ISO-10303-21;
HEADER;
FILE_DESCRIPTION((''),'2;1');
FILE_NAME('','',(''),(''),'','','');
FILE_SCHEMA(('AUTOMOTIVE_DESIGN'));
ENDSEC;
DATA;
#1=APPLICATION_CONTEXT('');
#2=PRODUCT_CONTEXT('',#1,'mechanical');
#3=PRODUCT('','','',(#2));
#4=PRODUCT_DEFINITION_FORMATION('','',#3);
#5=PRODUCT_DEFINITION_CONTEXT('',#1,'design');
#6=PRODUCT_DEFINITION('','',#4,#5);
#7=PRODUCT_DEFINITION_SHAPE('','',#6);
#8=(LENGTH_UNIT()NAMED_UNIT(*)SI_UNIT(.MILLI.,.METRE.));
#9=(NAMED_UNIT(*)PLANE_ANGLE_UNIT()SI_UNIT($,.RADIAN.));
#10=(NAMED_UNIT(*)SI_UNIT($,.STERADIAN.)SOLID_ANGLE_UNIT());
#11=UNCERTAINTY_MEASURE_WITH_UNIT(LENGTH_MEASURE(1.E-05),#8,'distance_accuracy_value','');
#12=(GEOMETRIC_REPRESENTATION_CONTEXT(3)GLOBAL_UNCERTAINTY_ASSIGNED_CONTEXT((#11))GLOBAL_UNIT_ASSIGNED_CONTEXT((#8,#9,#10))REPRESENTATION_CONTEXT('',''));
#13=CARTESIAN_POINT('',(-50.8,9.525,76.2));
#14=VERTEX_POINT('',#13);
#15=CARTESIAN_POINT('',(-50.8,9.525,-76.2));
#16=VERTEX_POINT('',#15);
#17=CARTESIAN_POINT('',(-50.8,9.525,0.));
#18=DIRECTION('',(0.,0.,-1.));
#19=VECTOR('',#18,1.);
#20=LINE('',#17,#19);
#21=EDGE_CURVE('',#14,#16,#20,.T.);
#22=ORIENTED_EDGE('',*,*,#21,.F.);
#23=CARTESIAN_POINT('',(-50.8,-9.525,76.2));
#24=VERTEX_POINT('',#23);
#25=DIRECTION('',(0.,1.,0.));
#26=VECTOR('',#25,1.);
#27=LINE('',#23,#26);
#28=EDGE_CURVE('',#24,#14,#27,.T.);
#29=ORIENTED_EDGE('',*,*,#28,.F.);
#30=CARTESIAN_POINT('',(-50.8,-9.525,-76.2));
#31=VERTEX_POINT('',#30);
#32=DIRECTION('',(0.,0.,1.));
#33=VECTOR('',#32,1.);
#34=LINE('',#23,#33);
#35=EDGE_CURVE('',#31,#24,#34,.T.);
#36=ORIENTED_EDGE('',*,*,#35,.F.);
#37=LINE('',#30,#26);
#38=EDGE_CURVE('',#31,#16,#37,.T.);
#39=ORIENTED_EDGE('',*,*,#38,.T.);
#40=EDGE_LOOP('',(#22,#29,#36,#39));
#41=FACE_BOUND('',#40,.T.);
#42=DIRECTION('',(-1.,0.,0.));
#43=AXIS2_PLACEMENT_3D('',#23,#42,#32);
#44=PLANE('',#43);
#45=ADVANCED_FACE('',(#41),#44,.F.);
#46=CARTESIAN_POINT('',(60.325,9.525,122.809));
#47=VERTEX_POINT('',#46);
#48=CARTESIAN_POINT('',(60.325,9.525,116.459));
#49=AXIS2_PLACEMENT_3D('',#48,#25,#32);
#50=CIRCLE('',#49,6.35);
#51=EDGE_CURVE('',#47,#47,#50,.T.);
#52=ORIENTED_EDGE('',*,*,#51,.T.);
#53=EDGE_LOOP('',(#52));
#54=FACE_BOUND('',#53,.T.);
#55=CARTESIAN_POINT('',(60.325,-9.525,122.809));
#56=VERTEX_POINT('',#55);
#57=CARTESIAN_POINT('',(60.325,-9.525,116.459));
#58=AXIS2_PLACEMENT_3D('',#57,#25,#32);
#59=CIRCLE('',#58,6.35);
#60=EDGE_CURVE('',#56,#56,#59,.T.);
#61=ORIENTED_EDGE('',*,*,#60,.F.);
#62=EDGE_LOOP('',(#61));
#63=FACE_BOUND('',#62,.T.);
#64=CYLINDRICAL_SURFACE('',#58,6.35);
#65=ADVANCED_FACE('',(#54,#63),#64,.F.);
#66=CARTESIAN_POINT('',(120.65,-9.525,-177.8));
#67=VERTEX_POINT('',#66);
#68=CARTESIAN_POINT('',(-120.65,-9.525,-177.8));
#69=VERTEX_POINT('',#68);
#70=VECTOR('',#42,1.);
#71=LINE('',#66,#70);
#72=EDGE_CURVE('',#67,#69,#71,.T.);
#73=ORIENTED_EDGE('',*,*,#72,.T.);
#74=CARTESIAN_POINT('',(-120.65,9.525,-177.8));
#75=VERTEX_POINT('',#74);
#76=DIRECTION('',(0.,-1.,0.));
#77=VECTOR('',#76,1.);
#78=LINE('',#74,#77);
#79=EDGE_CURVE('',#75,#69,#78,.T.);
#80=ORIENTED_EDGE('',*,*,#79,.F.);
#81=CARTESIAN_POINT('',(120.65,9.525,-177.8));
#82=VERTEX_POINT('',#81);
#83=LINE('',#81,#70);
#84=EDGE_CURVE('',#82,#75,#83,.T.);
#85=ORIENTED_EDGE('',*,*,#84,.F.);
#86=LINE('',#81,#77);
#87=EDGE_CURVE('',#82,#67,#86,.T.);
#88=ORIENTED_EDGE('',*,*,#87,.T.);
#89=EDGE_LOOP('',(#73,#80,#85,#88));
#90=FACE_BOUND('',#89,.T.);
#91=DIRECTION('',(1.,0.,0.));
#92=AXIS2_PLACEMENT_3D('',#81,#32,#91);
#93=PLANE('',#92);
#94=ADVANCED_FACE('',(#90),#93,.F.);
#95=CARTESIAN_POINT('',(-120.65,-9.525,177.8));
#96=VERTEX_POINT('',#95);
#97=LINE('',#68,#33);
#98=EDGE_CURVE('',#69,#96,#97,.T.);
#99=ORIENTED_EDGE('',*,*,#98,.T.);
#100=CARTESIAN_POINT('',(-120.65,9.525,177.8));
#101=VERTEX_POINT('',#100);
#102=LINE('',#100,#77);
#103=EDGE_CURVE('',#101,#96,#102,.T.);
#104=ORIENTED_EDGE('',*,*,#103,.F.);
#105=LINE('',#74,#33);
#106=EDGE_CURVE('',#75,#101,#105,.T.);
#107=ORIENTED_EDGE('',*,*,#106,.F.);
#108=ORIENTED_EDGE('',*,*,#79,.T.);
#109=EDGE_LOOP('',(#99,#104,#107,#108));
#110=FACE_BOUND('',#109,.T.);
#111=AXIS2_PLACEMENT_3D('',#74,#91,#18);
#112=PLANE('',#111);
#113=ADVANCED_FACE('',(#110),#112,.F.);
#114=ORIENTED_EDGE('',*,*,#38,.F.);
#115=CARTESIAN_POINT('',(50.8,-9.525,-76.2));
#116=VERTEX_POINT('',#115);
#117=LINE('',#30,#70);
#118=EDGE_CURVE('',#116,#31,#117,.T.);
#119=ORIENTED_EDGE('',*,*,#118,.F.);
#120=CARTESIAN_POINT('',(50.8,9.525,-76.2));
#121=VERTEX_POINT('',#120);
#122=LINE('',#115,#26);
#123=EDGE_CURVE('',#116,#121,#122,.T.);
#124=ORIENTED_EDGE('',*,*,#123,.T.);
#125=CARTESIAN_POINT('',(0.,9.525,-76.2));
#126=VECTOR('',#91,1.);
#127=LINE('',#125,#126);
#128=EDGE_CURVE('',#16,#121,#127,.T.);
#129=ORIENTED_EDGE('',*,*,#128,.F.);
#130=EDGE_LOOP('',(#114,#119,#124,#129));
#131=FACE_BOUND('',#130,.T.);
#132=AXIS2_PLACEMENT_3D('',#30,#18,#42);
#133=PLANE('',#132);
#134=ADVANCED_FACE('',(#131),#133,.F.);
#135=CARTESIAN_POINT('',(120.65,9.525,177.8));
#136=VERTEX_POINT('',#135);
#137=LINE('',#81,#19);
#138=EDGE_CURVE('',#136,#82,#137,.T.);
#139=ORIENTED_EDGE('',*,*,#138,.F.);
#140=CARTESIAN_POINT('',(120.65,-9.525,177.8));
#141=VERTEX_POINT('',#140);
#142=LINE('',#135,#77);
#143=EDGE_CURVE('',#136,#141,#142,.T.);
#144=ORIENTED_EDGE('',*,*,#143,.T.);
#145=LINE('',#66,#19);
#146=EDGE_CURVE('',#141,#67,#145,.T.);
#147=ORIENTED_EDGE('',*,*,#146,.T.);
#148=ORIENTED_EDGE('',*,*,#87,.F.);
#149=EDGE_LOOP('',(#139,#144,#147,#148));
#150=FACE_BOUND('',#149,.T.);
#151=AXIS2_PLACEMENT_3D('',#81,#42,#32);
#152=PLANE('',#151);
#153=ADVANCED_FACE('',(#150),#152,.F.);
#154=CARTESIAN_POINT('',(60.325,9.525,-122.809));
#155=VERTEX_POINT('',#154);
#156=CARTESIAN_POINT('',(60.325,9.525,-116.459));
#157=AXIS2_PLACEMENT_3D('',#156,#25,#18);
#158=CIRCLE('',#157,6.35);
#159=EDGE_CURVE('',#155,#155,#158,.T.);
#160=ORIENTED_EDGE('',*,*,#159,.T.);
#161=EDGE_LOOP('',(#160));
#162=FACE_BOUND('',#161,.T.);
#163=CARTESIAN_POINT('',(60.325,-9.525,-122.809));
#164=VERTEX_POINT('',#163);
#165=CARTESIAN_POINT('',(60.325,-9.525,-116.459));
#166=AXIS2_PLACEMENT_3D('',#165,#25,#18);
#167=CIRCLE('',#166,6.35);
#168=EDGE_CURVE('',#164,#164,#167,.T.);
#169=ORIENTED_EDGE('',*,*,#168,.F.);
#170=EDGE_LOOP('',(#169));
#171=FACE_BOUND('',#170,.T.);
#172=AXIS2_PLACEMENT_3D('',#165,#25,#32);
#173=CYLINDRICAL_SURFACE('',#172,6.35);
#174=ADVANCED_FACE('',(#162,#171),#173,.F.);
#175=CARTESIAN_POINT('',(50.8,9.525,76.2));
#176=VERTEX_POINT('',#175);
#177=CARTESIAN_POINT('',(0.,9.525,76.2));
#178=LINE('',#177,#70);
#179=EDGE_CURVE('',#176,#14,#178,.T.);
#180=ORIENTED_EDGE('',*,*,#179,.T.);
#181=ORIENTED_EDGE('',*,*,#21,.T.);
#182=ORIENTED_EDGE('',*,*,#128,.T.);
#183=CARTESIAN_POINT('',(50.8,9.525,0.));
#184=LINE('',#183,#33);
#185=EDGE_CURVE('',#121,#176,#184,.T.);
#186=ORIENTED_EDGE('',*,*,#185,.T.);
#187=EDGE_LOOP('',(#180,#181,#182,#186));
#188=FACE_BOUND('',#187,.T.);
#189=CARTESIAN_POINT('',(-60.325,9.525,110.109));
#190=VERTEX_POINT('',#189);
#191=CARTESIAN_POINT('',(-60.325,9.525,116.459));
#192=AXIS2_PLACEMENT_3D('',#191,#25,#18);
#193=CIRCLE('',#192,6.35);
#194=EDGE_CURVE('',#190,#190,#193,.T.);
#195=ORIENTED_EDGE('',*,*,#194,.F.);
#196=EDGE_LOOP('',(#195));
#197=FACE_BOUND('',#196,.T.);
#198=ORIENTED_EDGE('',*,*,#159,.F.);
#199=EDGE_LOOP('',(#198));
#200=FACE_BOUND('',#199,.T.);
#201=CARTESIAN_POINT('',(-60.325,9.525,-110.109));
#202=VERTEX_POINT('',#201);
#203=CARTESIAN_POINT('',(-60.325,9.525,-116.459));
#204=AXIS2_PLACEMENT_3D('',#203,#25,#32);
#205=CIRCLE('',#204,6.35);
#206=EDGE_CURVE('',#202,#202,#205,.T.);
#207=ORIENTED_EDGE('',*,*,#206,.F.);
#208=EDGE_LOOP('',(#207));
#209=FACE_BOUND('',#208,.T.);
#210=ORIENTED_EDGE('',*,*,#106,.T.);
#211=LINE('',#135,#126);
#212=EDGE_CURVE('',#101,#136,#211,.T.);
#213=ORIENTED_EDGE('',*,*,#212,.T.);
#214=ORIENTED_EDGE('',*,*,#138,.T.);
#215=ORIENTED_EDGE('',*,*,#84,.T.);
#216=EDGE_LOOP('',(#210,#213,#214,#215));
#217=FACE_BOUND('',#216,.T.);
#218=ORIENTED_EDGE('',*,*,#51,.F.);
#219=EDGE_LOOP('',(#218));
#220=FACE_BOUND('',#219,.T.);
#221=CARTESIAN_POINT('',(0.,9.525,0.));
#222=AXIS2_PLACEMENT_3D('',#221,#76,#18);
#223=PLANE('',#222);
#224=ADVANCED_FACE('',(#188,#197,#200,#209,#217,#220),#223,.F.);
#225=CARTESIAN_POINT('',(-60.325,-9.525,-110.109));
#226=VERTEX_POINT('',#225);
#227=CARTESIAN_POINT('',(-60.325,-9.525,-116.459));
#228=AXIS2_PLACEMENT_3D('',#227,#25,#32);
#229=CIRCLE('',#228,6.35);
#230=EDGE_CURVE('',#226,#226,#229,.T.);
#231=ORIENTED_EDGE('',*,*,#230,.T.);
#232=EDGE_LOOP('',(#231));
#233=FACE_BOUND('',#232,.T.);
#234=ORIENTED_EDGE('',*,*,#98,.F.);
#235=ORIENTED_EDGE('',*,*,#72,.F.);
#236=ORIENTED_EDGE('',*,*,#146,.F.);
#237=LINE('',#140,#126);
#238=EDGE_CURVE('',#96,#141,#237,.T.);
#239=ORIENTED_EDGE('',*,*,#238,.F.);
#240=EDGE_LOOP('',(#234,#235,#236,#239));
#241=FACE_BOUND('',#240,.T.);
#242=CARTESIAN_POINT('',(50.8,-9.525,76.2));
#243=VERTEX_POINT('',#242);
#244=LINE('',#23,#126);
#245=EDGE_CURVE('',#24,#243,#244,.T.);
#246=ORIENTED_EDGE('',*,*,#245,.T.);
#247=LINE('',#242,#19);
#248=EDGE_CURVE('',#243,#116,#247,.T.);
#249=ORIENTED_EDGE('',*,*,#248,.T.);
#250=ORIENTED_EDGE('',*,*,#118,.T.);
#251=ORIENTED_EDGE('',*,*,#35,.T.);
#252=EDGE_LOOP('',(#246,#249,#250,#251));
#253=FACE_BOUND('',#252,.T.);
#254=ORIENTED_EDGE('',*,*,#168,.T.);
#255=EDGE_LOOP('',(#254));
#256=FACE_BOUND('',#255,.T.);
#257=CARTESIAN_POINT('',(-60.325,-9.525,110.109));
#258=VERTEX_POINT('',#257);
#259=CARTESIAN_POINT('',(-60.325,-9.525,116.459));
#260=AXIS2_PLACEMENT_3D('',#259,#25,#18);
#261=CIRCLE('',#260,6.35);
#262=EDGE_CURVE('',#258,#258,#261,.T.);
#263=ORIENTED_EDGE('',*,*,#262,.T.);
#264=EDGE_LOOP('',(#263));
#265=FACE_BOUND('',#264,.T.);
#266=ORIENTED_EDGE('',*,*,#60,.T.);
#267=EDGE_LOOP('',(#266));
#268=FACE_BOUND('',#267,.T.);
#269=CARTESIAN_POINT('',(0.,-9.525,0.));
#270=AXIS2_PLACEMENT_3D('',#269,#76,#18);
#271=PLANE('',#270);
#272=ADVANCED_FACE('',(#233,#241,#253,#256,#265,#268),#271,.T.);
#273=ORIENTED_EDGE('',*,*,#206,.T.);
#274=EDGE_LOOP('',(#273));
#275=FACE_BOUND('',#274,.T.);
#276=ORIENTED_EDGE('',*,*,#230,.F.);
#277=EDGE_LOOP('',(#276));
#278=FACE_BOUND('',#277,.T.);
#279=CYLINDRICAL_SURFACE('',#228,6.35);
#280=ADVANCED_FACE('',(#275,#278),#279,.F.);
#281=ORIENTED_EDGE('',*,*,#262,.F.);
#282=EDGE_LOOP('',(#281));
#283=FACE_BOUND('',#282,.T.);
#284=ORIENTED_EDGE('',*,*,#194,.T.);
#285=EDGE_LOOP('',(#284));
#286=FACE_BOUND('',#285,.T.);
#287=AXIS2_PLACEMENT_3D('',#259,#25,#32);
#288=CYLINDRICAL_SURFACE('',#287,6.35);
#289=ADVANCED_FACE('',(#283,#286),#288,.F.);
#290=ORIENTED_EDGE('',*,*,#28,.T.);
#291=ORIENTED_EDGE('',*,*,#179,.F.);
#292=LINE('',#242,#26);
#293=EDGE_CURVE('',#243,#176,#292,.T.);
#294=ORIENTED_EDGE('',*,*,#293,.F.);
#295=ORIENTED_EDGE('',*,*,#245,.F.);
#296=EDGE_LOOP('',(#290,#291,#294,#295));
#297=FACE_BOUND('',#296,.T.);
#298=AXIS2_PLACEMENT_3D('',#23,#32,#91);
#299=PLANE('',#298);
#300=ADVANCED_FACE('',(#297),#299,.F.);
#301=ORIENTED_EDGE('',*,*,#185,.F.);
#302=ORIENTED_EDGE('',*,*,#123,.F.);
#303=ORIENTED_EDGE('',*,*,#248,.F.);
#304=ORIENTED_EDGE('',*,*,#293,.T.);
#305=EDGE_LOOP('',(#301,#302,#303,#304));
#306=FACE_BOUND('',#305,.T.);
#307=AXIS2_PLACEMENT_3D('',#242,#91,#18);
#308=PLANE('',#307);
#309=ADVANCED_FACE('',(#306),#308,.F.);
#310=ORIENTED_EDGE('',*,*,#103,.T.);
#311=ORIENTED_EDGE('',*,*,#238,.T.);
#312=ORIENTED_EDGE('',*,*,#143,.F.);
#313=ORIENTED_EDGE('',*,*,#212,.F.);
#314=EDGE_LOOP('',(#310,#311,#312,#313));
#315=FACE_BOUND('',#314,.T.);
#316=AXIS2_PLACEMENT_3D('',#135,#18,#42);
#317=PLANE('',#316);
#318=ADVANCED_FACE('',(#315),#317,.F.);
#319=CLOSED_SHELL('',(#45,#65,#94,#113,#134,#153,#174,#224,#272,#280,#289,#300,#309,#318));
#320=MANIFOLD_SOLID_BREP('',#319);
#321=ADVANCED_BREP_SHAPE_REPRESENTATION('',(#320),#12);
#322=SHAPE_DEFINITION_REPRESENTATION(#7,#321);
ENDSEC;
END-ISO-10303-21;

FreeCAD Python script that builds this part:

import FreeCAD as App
import Part
import Sketcher
Q = App.Units.Quantity

doc = App.newDocument("Part")
body = doc.addObject("PartDesign::Body", "Body")

sketch1 = body.newObject("Sketcher::SketchObject", "Sketch")
sketch1.AttachmentSupport = (doc.getObject("XZ_Plane"), [""])
sketch1.MapMode = "FlatFace"
sketch1.addGeometry([
    Part.LineSegment(App.Vector(-121, -178, 0), App.Vector(-121, 178, 0)),
    Part.LineSegment(App.Vector(-121, 178, 0), App.Vector(121, 178, 0)),
    Part.LineSegment(App.Vector(121, 178, 0), App.Vector(121, -178, 0)),
    Part.LineSegment(App.Vector(121, -178, 0), App.Vector(-121, -178, 0)),
], False)
sketch1.addConstraint([
    Sketcher.Constraint("Coincident", 0, 2, 1, 1),
    Sketcher.Constraint("Coincident", 1, 2, 2, 1),
    Sketcher.Constraint("Coincident", 2, 2, 3, 1),
    Sketcher.Constraint("Coincident", 3, 2, 0, 1),
    Sketcher.Constraint("Vertical", 0),
    Sketcher.Constraint("Horizontal", 1),
    Sketcher.Constraint("Vertical", 2),
    Sketcher.Constraint("Horizontal", 3),
    Sketcher.Constraint("Symmetric", 0, 2, 2, 2, -1, 1),
    Sketcher.Constraint("DistanceY", 0, 1, 0, 2, Q("14 in")),
    Sketcher.Constraint("DistanceX", 1, 1, 1, 2, Q("9.5 in")),
])
pad1 = body.newObject("PartDesign::Pad", "Pad")
pad1.Profile = sketch1
pad1.Length = Q("0.75 in")
pad1.Midplane = True

sketch2 = body.newObject("Sketcher::SketchObject", "Sketch001")
sketch2.AttachmentSupport = (doc.getObject("XZ_Plane"), [""])
sketch2.MapMode = "FlatFace"
sketch2.AttachmentOffset = App.Placement(App.Vector(0, 0, -0.375 * 25.4), App.Rotation())
sketch2.addGeometry([
    Part.Circle(App.Vector(-60, -116, 0), App.Vector(0, 0, 1), 6),
    Part.Circle(App.Vector(60, -116, 0), App.Vector(0, 0, 1), 6),
    Part.Circle(App.Vector(60, 116, 0), App.Vector(0, 0, 1), 6),
    Part.Circle(App.Vector(-60, 116, 0), App.Vector(0, 0, 1), 6),
], False)
sketch2.addConstraint([
    Sketcher.Constraint("Equal", 0, 1),
    Sketcher.Constraint("Equal", 1, 2),
    Sketcher.Constraint("Equal", 2, 3),
    Sketcher.Constraint("Symmetric", 0, 3, 2, 3, -1, 1),
    Sketcher.Constraint("Symmetric", 1, 3, 3, 3, -1, 1),
    Sketcher.Constraint("Symmetric", 0, 3, 1, 3, -2),
    Sketcher.Constraint("Diameter", 0, Q("0.5 in")),
    Sketcher.Constraint("DistanceX", 0, 3, 1, 3, Q("4.75 in")),
    Sketcher.Constraint("DistanceY", 1, 3, 2, 3, Q("9.17 in")),
])
pocket1 = body.newObject("PartDesign::Pocket", "Pocket")
pocket1.Profile = sketch2
pocket1.Type = "ThroughAll"
pocket1.Reversed = True

sketch3 = body.newObject("Sketcher::SketchObject", "Sketch002")
sketch3.AttachmentSupport = (doc.getObject("XZ_Plane"), [""])
sketch3.MapMode = "FlatFace"
sketch3.AttachmentOffset = App.Placement(App.Vector(0, 0, -0.375 * 25.4), App.Rotation())
sketch3.addGeometry([
    Part.LineSegment(App.Vector(-51, -76, 0), App.Vector(-51, 76, 0)),
    Part.LineSegment(App.Vector(-51, 76, 0), App.Vector(51, 76, 0)),
    Part.LineSegment(App.Vector(51, 76, 0), App.Vector(51, -76, 0)),
    Part.LineSegment(App.Vector(51, -76, 0), App.Vector(-51, -76, 0)),
], False)
sketch3.addConstraint([
    Sketcher.Constraint("Coincident", 0, 2, 1, 1),
    Sketcher.Constraint("Coincident", 1, 2, 2, 1),
    Sketcher.Constraint("Coincident", 2, 2, 3, 1),
    Sketcher.Constraint("Coincident", 3, 2, 0, 1),
    Sketcher.Constraint("Vertical", 0),
    Sketcher.Constraint("Horizontal", 1),
    Sketcher.Constraint("Vertical", 2),
    Sketcher.Constraint("Horizontal", 3),
    Sketcher.Constraint("Symmetric", 0, 2, 2, 2, -1, 1),
    Sketcher.Constraint("DistanceX", 1, 1, 1, 2, Q("4 in")),
    Sketcher.Constraint("DistanceY", 0, 1, 0, 2, Q("6 in")),
])
pocket2 = body.newObject("PartDesign::Pocket", "Pocket001")
pocket2.Profile = sketch3
pocket2.Type = "ThroughAll"
pocket2.Midplane = True

doc.recompute()
